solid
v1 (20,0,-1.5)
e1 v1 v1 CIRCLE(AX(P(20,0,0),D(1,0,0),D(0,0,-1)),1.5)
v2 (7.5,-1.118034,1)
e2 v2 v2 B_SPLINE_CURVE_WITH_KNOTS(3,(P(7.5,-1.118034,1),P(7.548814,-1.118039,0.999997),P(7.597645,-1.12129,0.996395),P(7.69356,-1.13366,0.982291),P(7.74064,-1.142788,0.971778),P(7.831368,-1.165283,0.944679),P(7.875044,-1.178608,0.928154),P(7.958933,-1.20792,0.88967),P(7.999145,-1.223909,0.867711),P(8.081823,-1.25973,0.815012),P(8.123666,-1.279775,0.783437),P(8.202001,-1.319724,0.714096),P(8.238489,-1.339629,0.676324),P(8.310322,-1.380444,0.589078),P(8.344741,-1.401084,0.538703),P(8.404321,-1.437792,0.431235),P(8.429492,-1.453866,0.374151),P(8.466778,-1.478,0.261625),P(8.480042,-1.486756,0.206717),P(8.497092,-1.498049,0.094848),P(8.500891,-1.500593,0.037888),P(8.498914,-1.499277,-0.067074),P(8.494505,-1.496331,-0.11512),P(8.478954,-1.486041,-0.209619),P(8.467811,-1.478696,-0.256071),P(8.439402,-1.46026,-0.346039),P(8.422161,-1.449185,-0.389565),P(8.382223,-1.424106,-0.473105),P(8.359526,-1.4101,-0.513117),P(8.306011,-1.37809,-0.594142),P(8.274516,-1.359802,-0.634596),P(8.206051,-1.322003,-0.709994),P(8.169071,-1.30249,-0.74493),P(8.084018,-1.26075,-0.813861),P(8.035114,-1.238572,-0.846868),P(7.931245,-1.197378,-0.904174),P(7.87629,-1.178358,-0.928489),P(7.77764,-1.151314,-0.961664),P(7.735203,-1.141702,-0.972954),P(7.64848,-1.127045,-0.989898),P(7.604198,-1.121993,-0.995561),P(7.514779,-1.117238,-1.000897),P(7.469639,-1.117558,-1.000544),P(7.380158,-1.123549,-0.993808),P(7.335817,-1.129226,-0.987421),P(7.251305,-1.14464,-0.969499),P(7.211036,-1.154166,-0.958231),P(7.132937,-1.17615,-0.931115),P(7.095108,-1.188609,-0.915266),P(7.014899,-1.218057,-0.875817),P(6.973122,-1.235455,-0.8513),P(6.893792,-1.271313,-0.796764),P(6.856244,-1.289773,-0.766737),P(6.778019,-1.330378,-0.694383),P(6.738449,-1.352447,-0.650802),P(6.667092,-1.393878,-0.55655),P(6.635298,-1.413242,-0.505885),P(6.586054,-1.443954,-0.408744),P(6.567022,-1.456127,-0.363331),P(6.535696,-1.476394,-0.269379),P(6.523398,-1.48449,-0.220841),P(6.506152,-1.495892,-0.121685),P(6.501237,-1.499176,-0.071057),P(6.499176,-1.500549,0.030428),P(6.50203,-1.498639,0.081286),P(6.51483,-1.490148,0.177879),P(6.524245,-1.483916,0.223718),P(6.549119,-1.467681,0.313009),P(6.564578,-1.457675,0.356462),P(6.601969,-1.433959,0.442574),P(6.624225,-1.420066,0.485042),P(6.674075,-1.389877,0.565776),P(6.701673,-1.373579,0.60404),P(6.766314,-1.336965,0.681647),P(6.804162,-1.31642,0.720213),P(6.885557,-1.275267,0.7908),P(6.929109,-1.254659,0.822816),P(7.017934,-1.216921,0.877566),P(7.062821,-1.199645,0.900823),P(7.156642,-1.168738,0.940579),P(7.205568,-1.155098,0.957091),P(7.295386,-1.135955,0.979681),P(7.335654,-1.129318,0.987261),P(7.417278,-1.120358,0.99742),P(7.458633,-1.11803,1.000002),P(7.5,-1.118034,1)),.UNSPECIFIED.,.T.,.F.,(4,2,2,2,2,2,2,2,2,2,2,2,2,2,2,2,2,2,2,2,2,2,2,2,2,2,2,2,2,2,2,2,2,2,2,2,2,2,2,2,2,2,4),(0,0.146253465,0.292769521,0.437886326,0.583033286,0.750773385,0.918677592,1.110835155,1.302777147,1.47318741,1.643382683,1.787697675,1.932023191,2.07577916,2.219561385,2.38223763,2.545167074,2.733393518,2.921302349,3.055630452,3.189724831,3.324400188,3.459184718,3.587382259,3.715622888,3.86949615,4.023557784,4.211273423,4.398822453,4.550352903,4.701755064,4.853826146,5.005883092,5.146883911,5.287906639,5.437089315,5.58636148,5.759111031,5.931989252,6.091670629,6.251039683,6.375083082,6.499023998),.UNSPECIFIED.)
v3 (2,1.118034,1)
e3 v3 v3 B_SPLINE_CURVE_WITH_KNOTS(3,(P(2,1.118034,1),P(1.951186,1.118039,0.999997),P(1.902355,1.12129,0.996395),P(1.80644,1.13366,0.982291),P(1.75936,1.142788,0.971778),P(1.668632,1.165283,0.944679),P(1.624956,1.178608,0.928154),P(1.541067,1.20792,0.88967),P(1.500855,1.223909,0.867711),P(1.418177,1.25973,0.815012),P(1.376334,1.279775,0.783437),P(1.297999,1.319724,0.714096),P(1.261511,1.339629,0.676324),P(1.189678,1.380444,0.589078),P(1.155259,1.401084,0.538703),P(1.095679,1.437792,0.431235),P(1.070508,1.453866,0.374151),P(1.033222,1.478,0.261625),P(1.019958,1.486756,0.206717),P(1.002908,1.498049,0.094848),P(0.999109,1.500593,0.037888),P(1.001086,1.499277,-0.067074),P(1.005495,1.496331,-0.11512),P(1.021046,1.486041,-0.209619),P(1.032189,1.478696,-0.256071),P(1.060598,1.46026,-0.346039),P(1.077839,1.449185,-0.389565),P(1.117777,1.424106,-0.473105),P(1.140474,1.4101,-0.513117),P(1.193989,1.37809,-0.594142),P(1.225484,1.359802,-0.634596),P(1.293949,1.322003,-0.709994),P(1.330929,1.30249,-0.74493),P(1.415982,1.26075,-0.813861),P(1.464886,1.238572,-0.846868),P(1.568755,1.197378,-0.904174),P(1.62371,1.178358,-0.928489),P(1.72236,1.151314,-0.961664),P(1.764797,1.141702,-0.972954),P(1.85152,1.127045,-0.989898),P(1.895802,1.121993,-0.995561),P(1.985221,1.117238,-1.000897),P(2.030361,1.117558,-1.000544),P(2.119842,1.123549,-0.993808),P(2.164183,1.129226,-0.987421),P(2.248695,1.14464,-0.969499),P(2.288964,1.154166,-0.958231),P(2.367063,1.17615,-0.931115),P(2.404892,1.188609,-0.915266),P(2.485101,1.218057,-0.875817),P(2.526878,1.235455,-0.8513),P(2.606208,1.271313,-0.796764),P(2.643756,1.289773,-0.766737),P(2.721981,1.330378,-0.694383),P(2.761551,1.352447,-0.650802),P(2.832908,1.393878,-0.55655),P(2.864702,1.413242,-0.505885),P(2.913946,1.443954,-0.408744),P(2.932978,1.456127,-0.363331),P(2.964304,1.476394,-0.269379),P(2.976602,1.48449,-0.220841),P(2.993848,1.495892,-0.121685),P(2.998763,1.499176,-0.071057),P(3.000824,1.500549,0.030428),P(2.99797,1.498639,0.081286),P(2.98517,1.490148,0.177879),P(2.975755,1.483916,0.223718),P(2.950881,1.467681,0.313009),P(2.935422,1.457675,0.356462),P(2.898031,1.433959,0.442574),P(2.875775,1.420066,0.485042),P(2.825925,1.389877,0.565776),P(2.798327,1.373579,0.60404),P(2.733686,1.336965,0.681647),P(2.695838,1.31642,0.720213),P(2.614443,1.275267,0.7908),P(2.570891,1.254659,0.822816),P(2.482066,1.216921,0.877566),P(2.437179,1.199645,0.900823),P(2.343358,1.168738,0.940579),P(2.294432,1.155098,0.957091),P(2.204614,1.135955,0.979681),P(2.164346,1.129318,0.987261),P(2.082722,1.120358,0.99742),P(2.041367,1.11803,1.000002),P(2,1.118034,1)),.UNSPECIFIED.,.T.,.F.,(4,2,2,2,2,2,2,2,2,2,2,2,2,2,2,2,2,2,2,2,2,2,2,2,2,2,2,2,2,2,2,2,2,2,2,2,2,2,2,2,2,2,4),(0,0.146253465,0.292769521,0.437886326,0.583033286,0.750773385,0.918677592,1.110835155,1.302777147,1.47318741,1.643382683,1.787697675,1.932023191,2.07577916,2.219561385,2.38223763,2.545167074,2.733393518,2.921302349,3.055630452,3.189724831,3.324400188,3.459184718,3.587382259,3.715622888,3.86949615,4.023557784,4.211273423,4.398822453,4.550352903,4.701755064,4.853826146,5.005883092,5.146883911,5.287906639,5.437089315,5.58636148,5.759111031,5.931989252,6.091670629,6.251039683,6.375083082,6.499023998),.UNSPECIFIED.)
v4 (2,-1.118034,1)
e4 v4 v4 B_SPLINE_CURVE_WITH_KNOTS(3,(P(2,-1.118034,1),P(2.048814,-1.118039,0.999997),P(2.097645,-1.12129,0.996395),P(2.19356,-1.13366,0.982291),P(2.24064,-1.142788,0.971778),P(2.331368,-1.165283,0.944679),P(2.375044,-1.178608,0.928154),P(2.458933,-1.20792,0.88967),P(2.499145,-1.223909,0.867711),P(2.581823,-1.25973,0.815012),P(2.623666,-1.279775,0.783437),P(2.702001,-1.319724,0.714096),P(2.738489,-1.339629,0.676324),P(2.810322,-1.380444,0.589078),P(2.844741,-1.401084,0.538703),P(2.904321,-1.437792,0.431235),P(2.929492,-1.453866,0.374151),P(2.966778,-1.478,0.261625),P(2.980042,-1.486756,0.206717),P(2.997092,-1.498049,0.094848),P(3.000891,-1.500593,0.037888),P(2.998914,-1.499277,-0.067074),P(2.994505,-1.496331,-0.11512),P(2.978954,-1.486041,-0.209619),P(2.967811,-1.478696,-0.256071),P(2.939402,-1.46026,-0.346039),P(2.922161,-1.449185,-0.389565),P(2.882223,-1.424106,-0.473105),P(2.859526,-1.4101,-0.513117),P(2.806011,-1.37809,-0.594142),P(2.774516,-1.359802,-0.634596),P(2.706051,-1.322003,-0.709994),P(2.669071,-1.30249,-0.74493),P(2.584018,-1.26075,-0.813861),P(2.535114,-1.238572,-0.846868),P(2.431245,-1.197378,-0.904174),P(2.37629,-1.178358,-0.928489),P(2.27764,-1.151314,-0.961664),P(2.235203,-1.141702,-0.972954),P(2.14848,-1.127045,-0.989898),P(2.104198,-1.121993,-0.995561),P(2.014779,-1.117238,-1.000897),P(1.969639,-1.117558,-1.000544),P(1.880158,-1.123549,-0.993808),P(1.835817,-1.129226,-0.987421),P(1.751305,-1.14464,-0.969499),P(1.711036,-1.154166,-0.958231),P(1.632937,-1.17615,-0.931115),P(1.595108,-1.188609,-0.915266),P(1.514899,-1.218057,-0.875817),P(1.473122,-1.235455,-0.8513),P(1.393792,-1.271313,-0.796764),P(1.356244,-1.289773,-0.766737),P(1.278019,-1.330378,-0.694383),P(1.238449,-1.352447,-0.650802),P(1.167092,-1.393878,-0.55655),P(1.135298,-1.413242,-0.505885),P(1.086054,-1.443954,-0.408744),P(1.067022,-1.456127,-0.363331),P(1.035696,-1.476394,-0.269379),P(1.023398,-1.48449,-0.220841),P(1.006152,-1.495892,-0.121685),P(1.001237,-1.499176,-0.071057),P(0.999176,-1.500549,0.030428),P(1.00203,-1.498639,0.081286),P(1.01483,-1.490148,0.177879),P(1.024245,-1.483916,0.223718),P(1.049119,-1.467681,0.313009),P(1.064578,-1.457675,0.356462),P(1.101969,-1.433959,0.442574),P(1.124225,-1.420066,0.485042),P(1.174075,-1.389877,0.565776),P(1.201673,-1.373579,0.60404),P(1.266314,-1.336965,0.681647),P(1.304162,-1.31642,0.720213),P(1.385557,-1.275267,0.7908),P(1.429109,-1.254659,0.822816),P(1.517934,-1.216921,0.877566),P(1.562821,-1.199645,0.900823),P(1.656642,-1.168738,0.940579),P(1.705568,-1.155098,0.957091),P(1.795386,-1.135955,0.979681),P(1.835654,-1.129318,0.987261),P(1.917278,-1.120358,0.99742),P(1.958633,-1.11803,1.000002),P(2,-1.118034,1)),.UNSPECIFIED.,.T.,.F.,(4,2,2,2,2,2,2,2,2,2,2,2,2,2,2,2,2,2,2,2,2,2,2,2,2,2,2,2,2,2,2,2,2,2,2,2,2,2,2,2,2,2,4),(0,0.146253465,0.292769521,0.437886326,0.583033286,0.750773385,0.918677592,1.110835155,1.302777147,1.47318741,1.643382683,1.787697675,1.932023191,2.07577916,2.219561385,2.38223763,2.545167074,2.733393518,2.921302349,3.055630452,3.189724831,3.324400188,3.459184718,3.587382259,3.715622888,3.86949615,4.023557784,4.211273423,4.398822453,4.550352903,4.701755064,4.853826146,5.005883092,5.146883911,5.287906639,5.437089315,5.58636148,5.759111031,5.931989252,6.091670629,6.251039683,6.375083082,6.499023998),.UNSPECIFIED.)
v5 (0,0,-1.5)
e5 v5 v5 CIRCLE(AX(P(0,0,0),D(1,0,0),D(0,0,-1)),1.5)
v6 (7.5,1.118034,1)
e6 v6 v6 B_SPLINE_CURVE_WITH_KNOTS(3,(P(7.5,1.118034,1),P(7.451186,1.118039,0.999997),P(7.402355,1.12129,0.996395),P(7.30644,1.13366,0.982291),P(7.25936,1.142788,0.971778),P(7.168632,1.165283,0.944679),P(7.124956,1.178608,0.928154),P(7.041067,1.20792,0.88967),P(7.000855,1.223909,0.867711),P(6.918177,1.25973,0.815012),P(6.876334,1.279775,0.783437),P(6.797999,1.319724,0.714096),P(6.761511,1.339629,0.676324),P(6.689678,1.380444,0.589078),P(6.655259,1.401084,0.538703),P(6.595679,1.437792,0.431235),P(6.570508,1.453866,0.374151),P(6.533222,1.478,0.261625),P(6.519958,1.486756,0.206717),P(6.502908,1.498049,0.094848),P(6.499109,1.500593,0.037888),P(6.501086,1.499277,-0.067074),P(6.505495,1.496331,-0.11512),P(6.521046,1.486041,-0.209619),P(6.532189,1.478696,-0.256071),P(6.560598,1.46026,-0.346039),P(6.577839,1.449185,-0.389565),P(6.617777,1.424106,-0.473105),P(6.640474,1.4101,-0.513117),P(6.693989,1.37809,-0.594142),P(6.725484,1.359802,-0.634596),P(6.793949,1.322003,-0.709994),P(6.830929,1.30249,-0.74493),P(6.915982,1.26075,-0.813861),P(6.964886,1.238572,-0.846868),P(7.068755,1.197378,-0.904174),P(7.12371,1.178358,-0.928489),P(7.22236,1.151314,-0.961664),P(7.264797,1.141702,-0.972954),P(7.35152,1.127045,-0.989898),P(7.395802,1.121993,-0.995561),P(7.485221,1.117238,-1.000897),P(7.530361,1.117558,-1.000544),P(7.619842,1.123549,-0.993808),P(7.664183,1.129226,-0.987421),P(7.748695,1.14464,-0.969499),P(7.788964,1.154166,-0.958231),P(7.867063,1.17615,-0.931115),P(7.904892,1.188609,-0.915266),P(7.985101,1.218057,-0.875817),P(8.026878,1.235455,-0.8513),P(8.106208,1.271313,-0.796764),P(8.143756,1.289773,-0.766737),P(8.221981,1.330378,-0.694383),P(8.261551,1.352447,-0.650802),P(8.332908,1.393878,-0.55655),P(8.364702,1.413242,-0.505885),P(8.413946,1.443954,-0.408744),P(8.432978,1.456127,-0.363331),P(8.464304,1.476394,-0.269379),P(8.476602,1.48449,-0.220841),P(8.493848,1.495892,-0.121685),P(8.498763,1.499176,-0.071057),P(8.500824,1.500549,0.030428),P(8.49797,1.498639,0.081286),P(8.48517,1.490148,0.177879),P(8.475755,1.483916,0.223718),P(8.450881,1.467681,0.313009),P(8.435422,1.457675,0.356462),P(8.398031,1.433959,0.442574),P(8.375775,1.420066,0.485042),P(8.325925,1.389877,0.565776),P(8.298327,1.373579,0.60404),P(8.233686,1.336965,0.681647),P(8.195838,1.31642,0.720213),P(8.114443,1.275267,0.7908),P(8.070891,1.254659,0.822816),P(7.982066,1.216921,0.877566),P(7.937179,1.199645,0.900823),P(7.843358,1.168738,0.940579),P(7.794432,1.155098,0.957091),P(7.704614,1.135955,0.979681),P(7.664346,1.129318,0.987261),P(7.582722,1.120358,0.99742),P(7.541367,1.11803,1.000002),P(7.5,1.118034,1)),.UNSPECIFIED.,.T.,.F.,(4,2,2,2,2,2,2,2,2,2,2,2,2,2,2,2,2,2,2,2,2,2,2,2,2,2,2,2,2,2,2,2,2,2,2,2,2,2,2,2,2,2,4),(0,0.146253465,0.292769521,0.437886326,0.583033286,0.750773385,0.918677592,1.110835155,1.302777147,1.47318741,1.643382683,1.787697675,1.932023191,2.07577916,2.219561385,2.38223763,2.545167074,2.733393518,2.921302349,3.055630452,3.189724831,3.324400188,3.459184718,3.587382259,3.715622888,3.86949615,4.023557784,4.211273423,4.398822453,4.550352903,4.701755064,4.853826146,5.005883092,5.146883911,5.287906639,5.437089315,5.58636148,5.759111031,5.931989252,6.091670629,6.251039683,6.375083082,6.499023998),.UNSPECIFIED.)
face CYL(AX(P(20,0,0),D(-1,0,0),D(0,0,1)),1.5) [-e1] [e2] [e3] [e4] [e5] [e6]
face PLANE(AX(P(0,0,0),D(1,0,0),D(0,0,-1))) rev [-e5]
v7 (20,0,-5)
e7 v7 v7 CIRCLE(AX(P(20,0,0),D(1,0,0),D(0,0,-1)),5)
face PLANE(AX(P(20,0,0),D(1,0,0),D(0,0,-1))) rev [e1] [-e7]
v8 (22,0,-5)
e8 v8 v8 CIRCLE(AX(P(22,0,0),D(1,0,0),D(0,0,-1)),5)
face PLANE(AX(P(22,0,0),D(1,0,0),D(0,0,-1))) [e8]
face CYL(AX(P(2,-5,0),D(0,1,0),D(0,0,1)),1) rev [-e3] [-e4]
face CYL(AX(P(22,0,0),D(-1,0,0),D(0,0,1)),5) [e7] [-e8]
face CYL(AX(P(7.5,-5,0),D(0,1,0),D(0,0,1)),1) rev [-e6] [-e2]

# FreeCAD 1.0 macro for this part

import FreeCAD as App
import Part
import Sketcher
from FreeCAD import Vector
Q = App.Units.Quantity

doc = App.newDocument("Part")
body = doc.addObject("PartDesign::Body", "Body")

# Sketch on YZ plane
sketch1 = body.newObject("Sketcher::SketchObject", "Sketch")
sketch1.AttachmentSupport = (doc.getObject("YZ_Plane"), [""])
sketch1.MapMode = "FlatFace"
sketch1.addGeometry(Part.Circle(Vector(0, 0, 0), Vector(0, 0, 1), 1.5), False)
sketch1.addConstraint(Sketcher.Constraint("Coincident", 0, 3, -1, 1))
sketch1.addConstraint(Sketcher.Constraint("Diameter", 0, Q("3 mm")))
pad1 = body.newObject("PartDesign::Pad", "Pad")
pad1.Profile = sketch1
pad1.Length = 20

# Sketch on YZ plane
sketch2 = body.newObject("Sketcher::SketchObject", "Sketch001")
sketch2.AttachmentSupport = (doc.getObject("YZ_Plane"), [""])
sketch2.MapMode = "FlatFace"
sketch2.AttachmentOffset = App.Placement(Vector(0, 0, 20), App.Rotation())
sketch2.addGeometry(Part.Circle(Vector(0, 0, 0), Vector(0, 0, 1), 5), False)
sketch2.addConstraint(Sketcher.Constraint("Coincident", 0, 3, -1, 1))
sketch2.addConstraint(Sketcher.Constraint("Diameter", 0, Q("10 mm")))
pad2 = body.newObject("PartDesign::Pad", "Pad001")
pad2.Profile = sketch2
pad2.Length = 2

# Sketch on XZ plane
sketch3 = body.newObject("Sketcher::SketchObject", "Sketch002")
sketch3.AttachmentSupport = (doc.getObject("XZ_Plane"), [""])
sketch3.MapMode = "FlatFace"
sketch3.addGeometry(Part.Circle(Vector(2, 0, 0), Vector(0, 0, 1), 1), False)
sketch3.addGeometry(Part.Circle(Vector(7.5, 0, 0), Vector(0, 0, 1), 1), False)
sketch3.addConstraint(Sketcher.Constraint("Equal", 0, 1))
sketch3.addConstraint(Sketcher.Constraint("PointOnObject", 0, 3, -1))
sketch3.addConstraint(Sketcher.Constraint("PointOnObject", 1, 3, -1))
sketch3.addConstraint(Sketcher.Constraint("Diameter", 0, Q("2 mm")))
sketch3.addConstraint(Sketcher.Constraint("DistanceX", -1, 1, 0, 3, Q("2 mm")))
sketch3.addConstraint(Sketcher.Constraint("DistanceX", -1, 1, 1, 3, Q("7.5 mm")))
pocket1 = body.newObject("PartDesign::Pocket", "Pocket")
pocket1.Profile = sketch3
pocket1.Type = "ThroughAll"
pocket1.Midplane = True

doc.recompute()
